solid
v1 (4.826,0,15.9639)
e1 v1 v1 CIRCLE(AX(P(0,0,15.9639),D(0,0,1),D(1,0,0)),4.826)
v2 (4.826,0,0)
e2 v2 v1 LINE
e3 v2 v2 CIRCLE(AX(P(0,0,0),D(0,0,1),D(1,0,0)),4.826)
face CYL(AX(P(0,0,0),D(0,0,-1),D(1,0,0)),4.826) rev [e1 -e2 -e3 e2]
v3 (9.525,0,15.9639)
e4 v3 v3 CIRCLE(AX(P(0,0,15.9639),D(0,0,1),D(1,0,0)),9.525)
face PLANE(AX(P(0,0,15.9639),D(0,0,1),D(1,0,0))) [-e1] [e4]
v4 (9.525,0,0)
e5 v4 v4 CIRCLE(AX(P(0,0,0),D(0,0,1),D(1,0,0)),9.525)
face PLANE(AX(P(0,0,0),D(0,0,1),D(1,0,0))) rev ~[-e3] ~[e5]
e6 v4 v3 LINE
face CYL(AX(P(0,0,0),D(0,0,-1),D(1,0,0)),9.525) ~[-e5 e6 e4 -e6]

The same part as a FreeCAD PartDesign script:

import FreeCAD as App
import Part
import Sketcher
Q = App.Units.Quantity

doc = App.newDocument("Part")
body = doc.addObject("PartDesign::Body", "Body")

sketch1 = body.newObject("Sketcher::SketchObject", "Sketch")
sketch1.AttachmentSupport = (doc.getObject("XY_Plane"), [""])
sketch1.MapMode = "FlatFace"
sketch1.addGeometry(Part.Circle(App.Vector(0, 0, 0), App.Vector(0, 0, 1), 9.5), False)
sketch1.addGeometry(Part.Circle(App.Vector(0, 0, 0), App.Vector(0, 0, 1), 4.8), False)
sketch1.addConstraint(Sketcher.Constraint("Coincident", 0, 3, -1, 1))
sketch1.addConstraint(Sketcher.Constraint("Coincident", 1, 3, -1, 1))
sketch1.addConstraint(Sketcher.Constraint("Diameter", 0, Q("0.75 in")))
sketch1.addConstraint(Sketcher.Constraint("Diameter", 1, Q("0.38 in")))
pad1 = body.newObject("PartDesign::Pad", "Pad")
pad1.Profile = sketch1
pad1.Length = Q("0.6285 in")

doc.recompute()
